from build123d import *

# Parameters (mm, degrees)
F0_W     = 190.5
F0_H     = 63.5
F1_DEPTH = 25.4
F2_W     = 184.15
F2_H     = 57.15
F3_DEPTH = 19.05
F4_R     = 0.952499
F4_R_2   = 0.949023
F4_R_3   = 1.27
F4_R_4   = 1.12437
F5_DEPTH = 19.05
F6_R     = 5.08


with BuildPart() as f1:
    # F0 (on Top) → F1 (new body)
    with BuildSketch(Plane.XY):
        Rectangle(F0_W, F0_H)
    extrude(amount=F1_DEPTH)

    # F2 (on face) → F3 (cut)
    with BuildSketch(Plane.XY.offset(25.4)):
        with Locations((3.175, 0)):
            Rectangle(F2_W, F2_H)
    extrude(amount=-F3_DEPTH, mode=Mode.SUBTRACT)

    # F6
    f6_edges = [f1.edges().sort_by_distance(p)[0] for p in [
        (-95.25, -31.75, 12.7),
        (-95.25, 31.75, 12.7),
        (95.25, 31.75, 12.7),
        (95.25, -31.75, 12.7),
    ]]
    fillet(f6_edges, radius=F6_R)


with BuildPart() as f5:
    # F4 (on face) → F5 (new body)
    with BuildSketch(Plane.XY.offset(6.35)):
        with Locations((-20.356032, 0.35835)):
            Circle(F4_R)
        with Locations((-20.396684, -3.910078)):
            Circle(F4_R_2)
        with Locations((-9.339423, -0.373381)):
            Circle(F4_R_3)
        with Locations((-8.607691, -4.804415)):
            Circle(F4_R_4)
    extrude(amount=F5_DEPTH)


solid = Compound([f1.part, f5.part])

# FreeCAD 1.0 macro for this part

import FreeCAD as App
import Part
import Sketcher
Q = App.Units.Quantity


def edges_at(feature, points):
    """Names of the edges that pass closest to the given points."""
    edges = feature.Shape.Edges
    near = lambda p: min(range(len(edges)), key=lambda i: edges[i].distToShape(Part.Vertex(*p))[0])
    return sorted({f"Edge{near(p) + 1}" for p in points})


def add_polygon(sketch, points):
    """Adds a closed chain of lines whose ends are joined by coincident constraints."""
    first, n = sketch.GeometryCount, len(points)
    for a, b in zip(points, points[1:] + points[:1]):
        sketch.addGeometry(Part.LineSegment(App.Vector(*a, 0), App.Vector(*b, 0)), False)
    for i in range(n):
        sketch.addConstraint(Sketcher.Constraint("Coincident", first + i, 2, first + (i + 1) % n, 1))

doc = App.newDocument("Part")
params = doc.addObject("Spreadsheet::Sheet", "Params")
for row, (alias, value) in enumerate([
    ("sketch1_width", "7.5 in"),
    ("sketch1_height", "2.5 in"),
    ("pad1_length", "1 in"),
    ("sketch2_width", "7.25 in"),
    ("sketch2_height", "2.25 in"),
    ("pocket1_length", "0.75 in"),
    ("fillet_radius", "0.2 in"),
    ("sketch3_diameter", "0.1 in"),
    ("sketch3_diameter2", "0.0749999 in"),
    ("pad2_length", "0.75 in"),
], start=1):
    params.set(f"A{row}", alias)
    params.set(f"B{row}", "=" + value)
    params.setAlias(f"B{row}", alias)

body = doc.addObject("PartDesign::Body", "Body")

sketch1 = body.newObject("Sketcher::SketchObject", "Sketch")
sketch1.AttachmentSupport = (doc.getObject("XY_Plane"), [""])
sketch1.MapMode = "FlatFace"
add_polygon(sketch1, [(-95.25, 31.75), (-95.25, -31.75), (95.25, -31.75), (95.25, 31.75)])
sketch1.addConstraint([
    Sketcher.Constraint("Vertical", 0),
    Sketcher.Constraint("Horizontal", 1),
    Sketcher.Constraint("Vertical", 2),
    Sketcher.Constraint("Horizontal", 3),
    Sketcher.Constraint("Symmetric", 0, 2, 2, 2, -1, 1),
    Sketcher.Constraint("DistanceX", 1, 1, 1, 2, Q("7.5 in")),
    Sketcher.Constraint("DistanceY", 0, 2, 0, 1, Q("2.5 in")),
])
sketch1.setExpression("Constraints[9]", "Params.sketch1_width")
sketch1.setExpression("Constraints[10]", "Params.sketch1_height")
pad1 = body.newObject("PartDesign::Pad", "Pad")
pad1.Profile = sketch1
pad1.setExpression("Length", "Params.pad1_length")

sketch2 = body.newObject("Sketcher::SketchObject", "Sketch001")
sketch2.AttachmentSupport = (doc.getObject("XY_Plane"), [""])
sketch2.MapMode = "FlatFace"
sketch2.AttachmentOffset = App.Placement(App.Vector(0, 0, 1 * 25.4), App.Rotation())
add_polygon(sketch2, [(-88.9, 28.575), (-88.9, -28.575), (95.25, -28.575), (95.25, 28.575)])
sketch2.addConstraint([
    Sketcher.Constraint("Vertical", 0),
    Sketcher.Constraint("Horizontal", 1),
    Sketcher.Constraint("Vertical", 2),
    Sketcher.Constraint("Horizontal", 3),
    Sketcher.Constraint("DistanceX", 1, 1, 1, 2, Q("7.25 in")),
    Sketcher.Constraint("DistanceY", 0, 2, 0, 1, Q("2.25 in")),
    Sketcher.Constraint("DistanceX", 0, 2, -1, 1, Q("3.5 in")),
    Sketcher.Constraint("DistanceY", 0, 2, -1, 1, Q("1.125 in")),
])
sketch2.setExpression("Constraints[8]", "Params.sketch2_width")
sketch2.setExpression("Constraints[9]", "Params.sketch2_height")
pocket1 = body.newObject("PartDesign::Pocket", "Pocket")
pocket1.Profile = sketch2
pocket1.setExpression("Length", "Params.pocket1_length")
doc.recompute()

fillet = body.newObject("PartDesign::Fillet", "Fillet")
fillet.Base = (pocket1, edges_at(pocket1, [
    (-95.25, -31.75, 12.7),
    (-95.25, 31.75, 12.7),
    (95.25, 31.75, 12.7),
    (95.25, -31.75, 12.7),
]))
fillet.setExpression("Radius", "Params.fillet_radius")
body2 = doc.addObject("PartDesign::Body", "Body001")
body2.AllowCompound = True

sketch3 = body2.newObject("Sketcher::SketchObject", "Sketch002")
sketch3.AttachmentSupport = (doc.getObject("XY_Plane001"), [""])
sketch3.MapMode = "FlatFace"
sketch3.AttachmentOffset = App.Placement(App.Vector(0, 0, 0.25 * 25.4), App.Rotation())
sketch3.addGeometry([
    Part.Circle(App.Vector(-20.356032, 0.35835, 0), App.Vector(0, 0, 1), 0.952499),
    Part.Circle(App.Vector(-20.396684, -3.910078, 0), App.Vector(0, 0, 1), 0.949023),
    Part.Circle(App.Vector(-9.339423, -0.373381, 0), App.Vector(0, 0, 1), 1.27),
    Part.Circle(App.Vector(-8.607691, -4.804415, 0), App.Vector(0, 0, 1), 1.12437),
], False)
sketch3.addConstraint([
    Sketcher.Constraint("Diameter", 2, Q("0.1 in")),
    Sketcher.Constraint("Diameter", 0, Q("0.0749999 in")),
    Sketcher.Constraint("Diameter", 3, 2.24874),
    Sketcher.Constraint("Diameter", 1, 1.898046),
    Sketcher.Constraint("DistanceY", 2, 3, -1, 1, Q("0.0147 in")),
    Sketcher.Constraint("DistanceX", 0, 3, -1, 1, 20.356032),
    Sketcher.Constraint("DistanceY", -1, 1, 0, 3, 0.35835),
    Sketcher.Constraint("DistanceY", 1, 3, -1, 1, 3.910078),
    Sketcher.Constraint("DistanceX", 3, 3, -1, 1, 8.607691),
    Sketcher.Constraint("DistanceX", 0, 3, 2, 3, 11.016609),
    Sketcher.Constraint("DistanceX", 1, 3, 2, 3, 11.057261),
    Sketcher.Constraint("DistanceY", 3, 3, -1, 1, 4.804415),
])
sketch3.setExpression("Constraints[0]", "Params.sketch3_diameter")
sketch3.setExpression("Constraints[1]", "Params.sketch3_diameter2")
pad2 = body2.newObject("PartDesign::Pad", "Pad001")
pad2.Profile = sketch3
pad2.setExpression("Length", "Params.pad2_length")

doc.recompute()
